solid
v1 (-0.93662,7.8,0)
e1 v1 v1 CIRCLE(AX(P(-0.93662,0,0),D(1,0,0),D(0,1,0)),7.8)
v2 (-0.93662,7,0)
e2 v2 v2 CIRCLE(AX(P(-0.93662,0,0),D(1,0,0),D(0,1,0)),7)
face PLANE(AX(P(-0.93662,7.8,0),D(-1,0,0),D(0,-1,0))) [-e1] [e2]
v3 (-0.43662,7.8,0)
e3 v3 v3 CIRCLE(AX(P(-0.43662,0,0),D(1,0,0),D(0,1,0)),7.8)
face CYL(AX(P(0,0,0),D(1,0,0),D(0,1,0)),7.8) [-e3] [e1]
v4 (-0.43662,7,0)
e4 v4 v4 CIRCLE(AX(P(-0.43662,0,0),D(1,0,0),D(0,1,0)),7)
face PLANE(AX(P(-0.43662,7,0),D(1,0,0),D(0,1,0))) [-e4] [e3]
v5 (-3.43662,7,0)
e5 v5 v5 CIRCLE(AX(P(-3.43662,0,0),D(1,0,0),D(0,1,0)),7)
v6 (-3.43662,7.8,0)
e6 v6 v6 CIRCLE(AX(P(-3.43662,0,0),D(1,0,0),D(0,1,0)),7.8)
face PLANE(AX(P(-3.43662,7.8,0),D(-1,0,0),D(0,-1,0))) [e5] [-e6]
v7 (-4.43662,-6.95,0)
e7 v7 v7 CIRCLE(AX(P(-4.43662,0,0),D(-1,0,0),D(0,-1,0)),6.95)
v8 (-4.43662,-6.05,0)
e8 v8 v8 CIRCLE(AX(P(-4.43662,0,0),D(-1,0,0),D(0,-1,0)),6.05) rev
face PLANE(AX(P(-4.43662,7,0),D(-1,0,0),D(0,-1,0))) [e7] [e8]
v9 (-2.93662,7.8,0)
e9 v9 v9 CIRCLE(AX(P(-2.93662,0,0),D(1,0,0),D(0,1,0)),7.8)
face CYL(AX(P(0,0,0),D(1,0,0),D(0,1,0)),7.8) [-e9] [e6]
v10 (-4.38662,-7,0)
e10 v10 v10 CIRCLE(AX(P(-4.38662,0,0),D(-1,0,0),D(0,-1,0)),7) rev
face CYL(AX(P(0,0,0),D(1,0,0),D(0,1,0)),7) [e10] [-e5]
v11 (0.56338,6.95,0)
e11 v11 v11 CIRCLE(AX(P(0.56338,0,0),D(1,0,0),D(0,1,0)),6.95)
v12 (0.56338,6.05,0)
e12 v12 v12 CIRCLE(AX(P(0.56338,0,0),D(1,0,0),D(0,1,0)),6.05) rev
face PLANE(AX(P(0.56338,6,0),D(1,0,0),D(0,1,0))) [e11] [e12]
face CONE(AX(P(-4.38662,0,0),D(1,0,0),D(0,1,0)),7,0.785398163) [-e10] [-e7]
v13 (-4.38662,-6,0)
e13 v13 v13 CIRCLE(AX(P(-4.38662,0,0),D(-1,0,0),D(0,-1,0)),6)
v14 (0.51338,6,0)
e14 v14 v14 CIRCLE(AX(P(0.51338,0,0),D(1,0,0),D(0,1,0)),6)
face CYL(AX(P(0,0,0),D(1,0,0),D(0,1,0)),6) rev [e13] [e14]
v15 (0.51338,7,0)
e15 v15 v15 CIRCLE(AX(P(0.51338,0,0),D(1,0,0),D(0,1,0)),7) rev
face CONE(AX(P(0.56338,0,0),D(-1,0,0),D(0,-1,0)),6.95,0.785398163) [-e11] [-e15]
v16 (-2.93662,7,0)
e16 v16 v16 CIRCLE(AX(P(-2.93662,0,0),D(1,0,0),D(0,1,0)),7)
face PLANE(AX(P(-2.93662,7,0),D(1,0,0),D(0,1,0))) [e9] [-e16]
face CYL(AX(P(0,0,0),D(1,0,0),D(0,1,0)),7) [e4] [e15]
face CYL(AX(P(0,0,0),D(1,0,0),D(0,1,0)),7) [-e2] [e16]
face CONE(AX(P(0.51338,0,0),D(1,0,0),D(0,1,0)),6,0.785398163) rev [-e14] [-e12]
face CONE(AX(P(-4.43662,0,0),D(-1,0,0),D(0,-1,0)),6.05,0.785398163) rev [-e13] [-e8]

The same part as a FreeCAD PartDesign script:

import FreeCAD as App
import Part
import Sketcher

V = App.Vector


def edges_at(feature, points):
    """Names of the edges that pass closest to the given points."""
    edges = feature.Shape.Edges
    near = lambda p: min(range(len(edges)), key=lambda i: edges[i].distToShape(Part.Vertex(*p))[0])
    return sorted({f"Edge{near(p) + 1}" for p in points})

doc = App.newDocument("Part")
body = doc.addObject("PartDesign::Body", "Body")

# Sketch on XY plane
sketch1 = body.newObject("Sketcher::SketchObject", "Sketch")
sketch1.AttachmentSupport = (doc.getObject("XY_Plane"), [""])
sketch1.MapMode = "FlatFace"
sketch1.addGeometry([
    Part.LineSegment(V(-4.4, 6, 0), V(0.6, 6, 0)),  # 0
    Part.LineSegment(V(0.6, 6, 0), V(0.6, 7, 0)),  # 1
    Part.LineSegment(V(0.6, 7, 0), V(-0.4, 7, 0)),  # 2
    Part.LineSegment(V(-0.4, 7, 0), V(-0.4, 7.8, 0)),  # 3
    Part.LineSegment(V(-0.4, 7.8, 0), V(-0.9, 7.8, 0)),  # 4
    Part.LineSegment(V(-0.9, 7.8, 0), V(-0.9, 7, 0)),  # 5
    Part.LineSegment(V(-0.9, 7, 0), V(-2.9, 7, 0)),  # 6
    Part.LineSegment(V(-2.9, 7, 0), V(-2.9, 7.8, 0)),  # 7
    Part.LineSegment(V(-2.9, 7.8, 0), V(-3.4, 7.8, 0)),  # 8
    Part.LineSegment(V(-3.4, 7.8, 0), V(-3.4, 7, 0)),  # 9
    Part.LineSegment(V(-3.4, 7, 0), V(-4.4, 7, 0)),  # 10
    Part.LineSegment(V(-4.4, 7, 0), V(-4.4, 6, 0)),  # 11
], False)
sketch1.addConstraint([
    Sketcher.Constraint("Coincident", 0, 2, 1, 1),
    Sketcher.Constraint("Coincident", 1, 2, 2, 1),
    Sketcher.Constraint("Coincident", 2, 2, 3, 1),
    Sketcher.Constraint("Coincident", 3, 2, 4, 1),
    Sketcher.Constraint("Coincident", 4, 2, 5, 1),
    Sketcher.Constraint("Coincident", 5, 2, 6, 1),
    Sketcher.Constraint("Coincident", 6, 2, 7, 1),
    Sketcher.Constraint("Coincident", 7, 2, 8, 1),
    Sketcher.Constraint("Coincident", 8, 2, 9, 1),
    Sketcher.Constraint("Coincident", 9, 2, 10, 1),
    Sketcher.Constraint("Coincident", 10, 2, 11, 1),
    Sketcher.Constraint("Coincident", 11, 2, 0, 1),
    Sketcher.Constraint("Horizontal", 0),
    Sketcher.Constraint("Vertical", 1),
    Sketcher.Constraint("Horizontal", 2),
    Sketcher.Constraint("Vertical", 3),
    Sketcher.Constraint("Horizontal", 4),
    Sketcher.Constraint("Vertical", 5),
    Sketcher.Constraint("Horizontal", 6),
    Sketcher.Constraint("Vertical", 7),
    Sketcher.Constraint("Horizontal", 8),
    Sketcher.Constraint("Vertical", 9),
    Sketcher.Constraint("Horizontal", 10),
    Sketcher.Constraint("Vertical", 11),
    Sketcher.Constraint("Horizontal", 2, 2, 5, 2),
    Sketcher.Constraint("Horizontal", 4, 2, 7, 2),
    Sketcher.Constraint("Horizontal", 6, 2, 9, 2),
    Sketcher.Constraint("Equal", 4, 8),
    Sketcher.Constraint("Equal", 2, 10),
    Sketcher.Constraint("Equal", 10, 1),
    Sketcher.Constraint("DistanceX", 0, 1, 0, 2, 5.0),
    Sketcher.Constraint("DistanceX", 2, 2, 2, 1, 1.0),
    Sketcher.Constraint("DistanceX", 6, 2, 6, 1, 2.0),
    Sketcher.Constraint("DistanceY", 3, 1, 3, 2, 0.8),
    Sketcher.Constraint("DistanceY", -1, 1, 0, 2, 6.0),
    Sketcher.Constraint("DistanceX", -1, 1, 0, 2, 0.56338),
])
revolution = body.newObject("PartDesign::Revolution", "Revolution")
revolution.Profile = sketch1
revolution.ReferenceAxis = (sketch1, ["H_Axis"])
revolution.Angle = 360
doc.recompute()

chamfer = body.newObject("PartDesign::Chamfer", "Chamfer")
chamfer.Base = (revolution, edges_at(revolution, [
    (0.563, -7, 0),
    (0.563, -6, 0),
    (-4.437, -6, 0),
    (-4.437, -7, 0),
]))
chamfer.Size = 0.05

doc.recompute()
